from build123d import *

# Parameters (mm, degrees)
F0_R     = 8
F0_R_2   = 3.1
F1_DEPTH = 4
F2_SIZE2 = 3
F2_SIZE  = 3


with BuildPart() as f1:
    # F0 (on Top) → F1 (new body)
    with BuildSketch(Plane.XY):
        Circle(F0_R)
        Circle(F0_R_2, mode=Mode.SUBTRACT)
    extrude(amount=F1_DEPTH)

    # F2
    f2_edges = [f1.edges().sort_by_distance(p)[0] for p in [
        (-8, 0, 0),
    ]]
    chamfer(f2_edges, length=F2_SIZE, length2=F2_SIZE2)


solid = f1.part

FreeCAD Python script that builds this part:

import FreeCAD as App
import Part
import Sketcher
Q = App.Units.Quantity


def edges_at(feature, points):
    """Names of the edges that pass closest to the given points."""
    edges = feature.Shape.Edges
    near = lambda p: min(range(len(edges)), key=lambda i: edges[i].distToShape(Part.Vertex(*p))[0])
    return sorted({f"Edge{near(p) + 1}" for p in points})

doc = App.newDocument("Part")
body = doc.addObject("PartDesign::Body", "Body")

# Sketch on XY plane
sketch1 = body.newObject("Sketcher::SketchObject", "Sketch")
sketch1.AttachmentSupport = (doc.getObject("XY_Plane"), [""])
sketch1.MapMode = "FlatFace"
sketch1.addGeometry([
    Part.Circle(App.Vector(0, 0, 0), App.Vector(0, 0, 1), 8),
    Part.Circle(App.Vector(0, 0, 0), App.Vector(0, 0, 1), 3.1),
], False)
sketch1.addConstraint([
    Sketcher.Constraint("Coincident", 0, 3, -1, 1),
    Sketcher.Constraint("Coincident", 1, 3, -1, 1),
    Sketcher.Constraint("Diameter", 0, Q("16 mm")),
    Sketcher.Constraint("Diameter", 1, Q("6.2 mm")),
])
pad1 = body.newObject("PartDesign::Pad", "Pad")
pad1.Profile = sketch1
pad1.Length = 4
doc.recompute()

chamfer = body.newObject("PartDesign::Chamfer", "Chamfer")
chamfer.Base = (pad1, edges_at(pad1, [(-8, 0, 0)]))
chamfer.ChamferType = "Two distances"
chamfer.Size = 3
chamfer.Size2 = 3

doc.recompute()
